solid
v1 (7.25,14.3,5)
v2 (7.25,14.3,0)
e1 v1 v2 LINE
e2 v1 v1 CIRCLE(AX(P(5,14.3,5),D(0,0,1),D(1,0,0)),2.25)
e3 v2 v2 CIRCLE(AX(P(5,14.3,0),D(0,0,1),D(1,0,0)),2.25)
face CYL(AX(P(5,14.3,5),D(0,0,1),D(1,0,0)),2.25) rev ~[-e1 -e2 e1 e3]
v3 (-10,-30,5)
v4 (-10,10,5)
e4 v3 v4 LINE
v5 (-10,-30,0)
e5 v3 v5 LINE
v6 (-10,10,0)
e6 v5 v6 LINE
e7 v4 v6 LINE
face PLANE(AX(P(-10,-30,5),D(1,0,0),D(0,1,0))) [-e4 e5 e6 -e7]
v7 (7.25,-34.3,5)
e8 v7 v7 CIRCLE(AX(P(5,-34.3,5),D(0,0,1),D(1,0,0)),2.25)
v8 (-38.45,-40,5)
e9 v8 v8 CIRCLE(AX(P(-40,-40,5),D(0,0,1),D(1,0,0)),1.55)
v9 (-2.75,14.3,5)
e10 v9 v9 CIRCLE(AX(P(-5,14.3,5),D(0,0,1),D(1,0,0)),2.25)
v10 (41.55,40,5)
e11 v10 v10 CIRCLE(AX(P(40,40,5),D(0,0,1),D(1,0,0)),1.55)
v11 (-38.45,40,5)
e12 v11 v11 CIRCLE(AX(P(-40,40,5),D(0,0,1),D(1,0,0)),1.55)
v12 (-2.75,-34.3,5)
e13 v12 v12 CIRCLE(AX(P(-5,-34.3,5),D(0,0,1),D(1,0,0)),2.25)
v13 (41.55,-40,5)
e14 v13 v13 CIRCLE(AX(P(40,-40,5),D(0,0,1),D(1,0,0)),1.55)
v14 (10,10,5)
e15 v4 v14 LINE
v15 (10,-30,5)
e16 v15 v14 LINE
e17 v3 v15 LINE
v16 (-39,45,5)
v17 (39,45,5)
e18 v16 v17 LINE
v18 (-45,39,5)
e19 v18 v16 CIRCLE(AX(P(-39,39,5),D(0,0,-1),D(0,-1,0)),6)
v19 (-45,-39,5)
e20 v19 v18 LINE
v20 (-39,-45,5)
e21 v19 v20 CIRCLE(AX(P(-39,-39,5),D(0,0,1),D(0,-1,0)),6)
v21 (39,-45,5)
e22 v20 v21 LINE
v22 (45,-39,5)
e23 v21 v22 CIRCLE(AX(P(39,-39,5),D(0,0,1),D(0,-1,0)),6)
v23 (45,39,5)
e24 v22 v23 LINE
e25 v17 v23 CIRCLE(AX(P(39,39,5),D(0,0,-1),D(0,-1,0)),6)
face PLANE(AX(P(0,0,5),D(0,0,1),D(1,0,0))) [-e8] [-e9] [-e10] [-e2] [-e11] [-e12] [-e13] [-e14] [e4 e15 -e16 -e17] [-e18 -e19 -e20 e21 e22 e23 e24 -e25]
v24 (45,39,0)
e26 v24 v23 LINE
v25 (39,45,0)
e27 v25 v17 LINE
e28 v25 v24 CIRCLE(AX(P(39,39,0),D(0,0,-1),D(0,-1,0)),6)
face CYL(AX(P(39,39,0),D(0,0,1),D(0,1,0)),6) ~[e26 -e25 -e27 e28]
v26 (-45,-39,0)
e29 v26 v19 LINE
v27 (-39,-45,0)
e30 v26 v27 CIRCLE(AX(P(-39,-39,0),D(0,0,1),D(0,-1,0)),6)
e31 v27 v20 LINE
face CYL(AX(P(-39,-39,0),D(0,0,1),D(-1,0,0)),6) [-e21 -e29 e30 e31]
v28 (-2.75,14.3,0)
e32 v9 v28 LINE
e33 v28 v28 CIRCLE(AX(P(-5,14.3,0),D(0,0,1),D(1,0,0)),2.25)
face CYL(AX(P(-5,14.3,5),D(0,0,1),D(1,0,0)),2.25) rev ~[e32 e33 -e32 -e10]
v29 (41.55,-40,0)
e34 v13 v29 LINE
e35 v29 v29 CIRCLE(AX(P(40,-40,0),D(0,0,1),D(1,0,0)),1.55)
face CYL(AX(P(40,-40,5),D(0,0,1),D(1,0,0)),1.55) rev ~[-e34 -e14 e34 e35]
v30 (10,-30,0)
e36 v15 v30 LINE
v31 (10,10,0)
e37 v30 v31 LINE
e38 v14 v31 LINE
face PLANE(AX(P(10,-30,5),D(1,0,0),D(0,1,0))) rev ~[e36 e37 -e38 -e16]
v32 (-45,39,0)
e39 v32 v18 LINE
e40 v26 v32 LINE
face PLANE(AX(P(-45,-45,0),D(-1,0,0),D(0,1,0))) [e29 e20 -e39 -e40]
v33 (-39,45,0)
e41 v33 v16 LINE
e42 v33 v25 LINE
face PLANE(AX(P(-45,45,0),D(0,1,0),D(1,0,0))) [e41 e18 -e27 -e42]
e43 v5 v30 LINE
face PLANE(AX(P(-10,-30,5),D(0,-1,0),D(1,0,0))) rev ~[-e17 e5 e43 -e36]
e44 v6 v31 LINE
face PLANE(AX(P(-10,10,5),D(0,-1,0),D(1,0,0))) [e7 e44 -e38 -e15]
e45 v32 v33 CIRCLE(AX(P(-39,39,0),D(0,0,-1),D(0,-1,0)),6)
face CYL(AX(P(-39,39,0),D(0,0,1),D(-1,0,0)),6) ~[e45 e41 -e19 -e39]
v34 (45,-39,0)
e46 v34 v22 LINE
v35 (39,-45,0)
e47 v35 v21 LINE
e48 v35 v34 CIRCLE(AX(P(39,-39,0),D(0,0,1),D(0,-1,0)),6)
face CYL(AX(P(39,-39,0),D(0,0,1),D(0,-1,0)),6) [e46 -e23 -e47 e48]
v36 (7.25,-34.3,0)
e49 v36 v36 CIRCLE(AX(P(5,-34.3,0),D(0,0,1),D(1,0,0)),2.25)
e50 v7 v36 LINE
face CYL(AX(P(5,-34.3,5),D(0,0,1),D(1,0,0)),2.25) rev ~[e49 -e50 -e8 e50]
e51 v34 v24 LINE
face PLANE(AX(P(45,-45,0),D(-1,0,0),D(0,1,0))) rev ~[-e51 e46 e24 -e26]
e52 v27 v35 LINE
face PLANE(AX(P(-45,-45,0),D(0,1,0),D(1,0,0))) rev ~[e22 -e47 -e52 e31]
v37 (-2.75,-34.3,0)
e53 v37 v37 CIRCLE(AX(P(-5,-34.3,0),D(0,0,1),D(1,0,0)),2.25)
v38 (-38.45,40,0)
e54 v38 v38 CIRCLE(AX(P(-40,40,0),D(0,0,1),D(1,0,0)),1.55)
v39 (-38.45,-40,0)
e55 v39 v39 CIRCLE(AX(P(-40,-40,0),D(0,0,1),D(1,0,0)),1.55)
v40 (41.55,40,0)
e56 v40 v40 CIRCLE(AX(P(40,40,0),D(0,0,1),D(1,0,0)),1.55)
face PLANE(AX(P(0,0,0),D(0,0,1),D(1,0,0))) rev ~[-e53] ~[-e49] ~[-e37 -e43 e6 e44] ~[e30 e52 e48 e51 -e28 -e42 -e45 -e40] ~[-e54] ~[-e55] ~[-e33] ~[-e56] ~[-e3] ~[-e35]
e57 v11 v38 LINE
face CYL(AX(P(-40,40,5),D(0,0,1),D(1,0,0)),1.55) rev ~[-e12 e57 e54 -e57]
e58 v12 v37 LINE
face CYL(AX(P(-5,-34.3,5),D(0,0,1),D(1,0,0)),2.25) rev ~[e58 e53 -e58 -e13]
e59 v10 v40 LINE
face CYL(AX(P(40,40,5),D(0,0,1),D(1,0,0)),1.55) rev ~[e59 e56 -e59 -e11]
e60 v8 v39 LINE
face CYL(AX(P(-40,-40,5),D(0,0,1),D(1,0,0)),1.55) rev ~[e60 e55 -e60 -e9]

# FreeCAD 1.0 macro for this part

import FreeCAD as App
import Part
import Sketcher
from FreeCAD import Vector


def edges_at(feature, points):
    """Names of the edges that pass closest to the given points."""
    edges = feature.Shape.Edges
    near = lambda p: min(range(len(edges)), key=lambda i: edges[i].distToShape(Part.Vertex(*p))[0])
    return sorted({f"Edge{near(p) + 1}" for p in points})


def add_polygon(sketch, points):
    """Adds a closed chain of lines whose ends are joined by coincident constraints."""
    first, n = sketch.GeometryCount, len(points)
    for a, b in zip(points, points[1:] + points[:1]):
        sketch.addGeometry(Part.LineSegment(App.Vector(*a, 0), App.Vector(*b, 0)), False)
    for i in range(n):
        sketch.addConstraint(Sketcher.Constraint("Coincident", first + i, 2, first + (i + 1) % n, 1))

doc = App.newDocument("Part")
body = doc.addObject("PartDesign::Body", "Body")

sketch1 = body.newObject("Sketcher::SketchObject", "Sketch")
sketch1.AttachmentSupport = (doc.getObject("XY_Plane"), [""])
sketch1.MapMode = "FlatFace"
add_polygon(sketch1, [(-45, 45), (-45, -45), (45, -45), (45, 45)])
sketch1.addConstraint([
    Sketcher.Constraint("Vertical", 0),
    Sketcher.Constraint("Horizontal", 1),
    Sketcher.Constraint("Vertical", 2),
    Sketcher.Constraint("Horizontal", 3),
    Sketcher.Constraint("Symmetric", 0, 2, 2, 2, -1, 1),
    Sketcher.Constraint("Equal", 3, 0),
    Sketcher.Constraint("DistanceX", 1, 1, 1, 2, 90.0),
])
pad1 = body.newObject("PartDesign::Pad", "Pad")
pad1.Profile = sketch1
pad1.Length = 5

sketch2 = body.newObject("Sketcher::SketchObject", "Sketch001")
sketch2.AttachmentSupport = (doc.getObject("XY_Plane"), [""])
sketch2.MapMode = "FlatFace"
sketch2.AttachmentOffset = App.Placement(Vector(0, 0, 5), App.Rotation())
sketch2.addGeometry([
    Part.Circle(Vector(-40, 40, 0), Vector(0, 0, 1), 1.6),
    Part.Circle(Vector(40, 40, 0), Vector(0, 0, 1), 1.6),
    Part.Circle(Vector(40, -40, 0), Vector(0, 0, 1), 1.6),
    Part.Circle(Vector(-40, -40, 0), Vector(0, 0, 1), 1.6),
], False)
sketch2.addConstraint([
    Sketcher.Constraint("Equal", 0, 1),
    Sketcher.Constraint("Equal", 1, 2),
    Sketcher.Constraint("Equal", 2, 3),
    Sketcher.Constraint("Symmetric", 0, 3, 2, 3, -1, 1),
    Sketcher.Constraint("Symmetric", 1, 3, 3, 3, -1, 1),
    Sketcher.Constraint("Symmetric", 0, 3, 1, 3, -2),
    Sketcher.Constraint("Diameter", 0, 3.1),
    Sketcher.Constraint("DistanceX", 0, 3, -1, 1, 40.0),
    Sketcher.Constraint("DistanceY", -1, 1, 0, 3, 40.0),
])
pocket1 = body.newObject("PartDesign::Pocket", "Pocket")
pocket1.Profile = sketch2
pocket1.Length = 5
doc.recompute()

fillet = body.newObject("PartDesign::Fillet", "Fillet")
fillet.Base = (pocket1, edges_at(pocket1, [
    (-45, -45, 2.5),
    (45, -45, 2.5),
    (45, 45, 2.5),
    (-45, 45, 2.5),
]))
fillet.Radius = 6

sketch3 = body.newObject("Sketcher::SketchObject", "Sketch002")
sketch3.AttachmentSupport = (doc.getObject("XY_Plane"), [""])
sketch3.MapMode = "FlatFace"
sketch3.AttachmentOffset = App.Placement(Vector(0, 0, 5), App.Rotation())
add_polygon(sketch3, [(-10, 10), (-10, -30), (10, -30), (10, 10)])
sketch3.addConstraint([
    Sketcher.Constraint("Vertical", 0),
    Sketcher.Constraint("Horizontal", 1),
    Sketcher.Constraint("Vertical", 2),
    Sketcher.Constraint("Horizontal", 3),
    Sketcher.Constraint("DistanceX", 1, 1, 1, 2, 20.0),
    Sketcher.Constraint("DistanceY", 0, 2, 0, 1, 40.0),
    Sketcher.Constraint("DistanceX", 0, 2, -1, 1, 10.0),
    Sketcher.Constraint("DistanceY", 0, 2, -1, 1, 30.0),
])
pocket2 = body.newObject("PartDesign::Pocket", "Pocket001")
pocket2.Profile = sketch3
pocket2.Length = 5

sketch4 = body.newObject("Sketcher::SketchObject", "Sketch003")
sketch4.AttachmentSupport = (doc.getObject("XY_Plane"), [""])
sketch4.MapMode = "FlatFace"
sketch4.AttachmentOffset = App.Placement(Vector(0, 0, 5), App.Rotation())
sketch4.addGeometry([
    Part.Circle(Vector(-5, 14.3, 0), Vector(0, 0, 1), 2.2),
    Part.Circle(Vector(5, 14.3, 0), Vector(0, 0, 1), 2.2),
    Part.Circle(Vector(-5, -34.3, 0), Vector(0, 0, 1), 2.2),
    Part.Circle(Vector(5, -34.3, 0), Vector(0, 0, 1), 2.2),
], False)
sketch4.addConstraint([
    Sketcher.Constraint("Equal", 0, 1),
    Sketcher.Constraint("Equal", 1, 2),
    Sketcher.Constraint("Equal", 2, 3),
    Sketcher.Constraint("Symmetric", 0, 3, 1, 3, -2),
    Sketcher.Constraint("Symmetric", 2, 3, 3, 3, -2),
    Sketcher.Constraint("Vertical", 0, 3, 2, 3),
    Sketcher.Constraint("Diameter", 0, 4.5),
    Sketcher.Constraint("DistanceX", 0, 3, -1, 1, 5.0),
    Sketcher.Constraint("DistanceY", -1, 1, 0, 3, 14.3),
    Sketcher.Constraint("DistanceY", 2, 3, -1, 1, 34.3),
])
pocket3 = body.newObject("PartDesign::Pocket", "Pocket002")
pocket3.Profile = sketch4
pocket3.Length = 5

doc.recompute()
